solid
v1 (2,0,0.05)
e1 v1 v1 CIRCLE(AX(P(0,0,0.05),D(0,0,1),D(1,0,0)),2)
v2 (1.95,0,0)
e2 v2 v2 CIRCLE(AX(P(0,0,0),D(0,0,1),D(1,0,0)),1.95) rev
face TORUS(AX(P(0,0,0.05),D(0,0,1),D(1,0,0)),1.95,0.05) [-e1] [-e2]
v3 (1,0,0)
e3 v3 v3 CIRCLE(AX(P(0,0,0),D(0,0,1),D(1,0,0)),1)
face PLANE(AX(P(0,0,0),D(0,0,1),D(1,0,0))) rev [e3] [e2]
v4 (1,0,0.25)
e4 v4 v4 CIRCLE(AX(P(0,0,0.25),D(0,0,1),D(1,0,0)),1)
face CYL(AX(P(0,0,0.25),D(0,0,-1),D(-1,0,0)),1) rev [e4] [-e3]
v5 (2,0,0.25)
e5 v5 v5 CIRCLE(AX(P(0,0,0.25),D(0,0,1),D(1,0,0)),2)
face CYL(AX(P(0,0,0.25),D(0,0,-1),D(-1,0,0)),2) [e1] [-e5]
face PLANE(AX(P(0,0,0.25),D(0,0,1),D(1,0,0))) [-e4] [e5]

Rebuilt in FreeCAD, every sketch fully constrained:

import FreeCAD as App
import Part
import Sketcher

V = App.Vector
Q = App.Units.Quantity


def edges_at(feature, points):
    """Names of the edges that pass closest to the given points."""
    edges = feature.Shape.Edges
    near = lambda p: min(range(len(edges)), key=lambda i: edges[i].distToShape(Part.Vertex(*p))[0])
    return sorted({f"Edge{near(p) + 1}" for p in points})

doc = App.newDocument("Part")
body = doc.addObject("PartDesign::Body", "Body")

sketch1 = body.newObject("Sketcher::SketchObject", "Sketch")
sketch1.AttachmentSupport = (doc.getObject("XY_Plane"), [""])
sketch1.MapMode = "FlatFace"
sketch1.addGeometry(Part.Circle(V(0, 0, 0), V(0, 0, 1), 2), False)
sketch1.addGeometry(Part.Circle(V(0, 0, 0), V(0, 0, 1), 1), False)
sketch1.addConstraint(Sketcher.Constraint("Coincident", 0, 3, -1, 1))
sketch1.addConstraint(Sketcher.Constraint("Coincident", 1, 3, -1, 1))
sketch1.addConstraint(Sketcher.Constraint("Diameter", 0, Q("4 mm")))
sketch1.addConstraint(Sketcher.Constraint("Diameter", 1, Q("2 mm")))
pad1 = body.newObject("PartDesign::Pad", "Pad")
pad1.Profile = sketch1
pad1.Length = 0.25
doc.recompute()

fillet = body.newObject("PartDesign::Fillet", "Fillet")
fillet.Base = (pad1, edges_at(pad1, [(-2, 0, 0)]))
fillet.Radius = 0.05

doc.recompute()
